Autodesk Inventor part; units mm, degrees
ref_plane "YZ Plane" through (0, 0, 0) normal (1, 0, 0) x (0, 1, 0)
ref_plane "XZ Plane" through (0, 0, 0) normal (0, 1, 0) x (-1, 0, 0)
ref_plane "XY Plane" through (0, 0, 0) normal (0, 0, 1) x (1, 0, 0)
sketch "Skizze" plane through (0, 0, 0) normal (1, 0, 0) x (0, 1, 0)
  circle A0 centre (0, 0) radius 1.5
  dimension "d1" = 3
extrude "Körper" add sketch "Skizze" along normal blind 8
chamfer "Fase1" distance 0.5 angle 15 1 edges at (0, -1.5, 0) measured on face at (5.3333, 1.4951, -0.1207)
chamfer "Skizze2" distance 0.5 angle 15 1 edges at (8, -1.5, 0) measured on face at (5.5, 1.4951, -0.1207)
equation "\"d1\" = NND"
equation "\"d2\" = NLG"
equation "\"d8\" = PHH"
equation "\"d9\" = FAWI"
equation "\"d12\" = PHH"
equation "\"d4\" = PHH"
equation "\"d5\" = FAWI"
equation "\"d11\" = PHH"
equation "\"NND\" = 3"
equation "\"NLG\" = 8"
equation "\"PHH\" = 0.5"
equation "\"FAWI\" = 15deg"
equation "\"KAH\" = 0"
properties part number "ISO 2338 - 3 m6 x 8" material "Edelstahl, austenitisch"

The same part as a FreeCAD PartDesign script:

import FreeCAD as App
import Part
import Sketcher
from FreeCAD import Vector
Q = App.Units.Quantity


def edges_at(feature, points):
    """Names of the edges that pass closest to the given points."""
    edges = feature.Shape.Edges
    near = lambda p: min(range(len(edges)), key=lambda i: edges[i].distToShape(Part.Vertex(*p))[0])
    return sorted({f"Edge{near(p) + 1}" for p in points})

doc = App.newDocument("Part")
body = doc.addObject("PartDesign::Body", "Body")

sketch1 = doc.addObject("Sketcher::SketchObject", "Sketch")
body.addObject(sketch1)
sketch1.AttachmentSupport = (doc.YZ_Plane, [""])
sketch1.MapMode = "FlatFace"
sketch1.addGeometry(Part.Circle(Vector(0, 0, 0), Vector(0, 0, 1), 1.5), False)
sketch1.addConstraint([
    Sketcher.Constraint("Coincident", 0, 3, -1, 1),
    Sketcher.Constraint("Diameter", 0, Q("3 mm")),
])
pad1 = doc.addObject("PartDesign::Pad", "Pad")
body.addObject(pad1)
pad1.Profile = sketch1
pad1.Length = 8
doc.recompute()

chamfer = doc.addObject("PartDesign::Chamfer", "Chamfer")
body.addObject(chamfer)
chamfer.Base = (pad1, edges_at(pad1, [(0, -1.5, 0)]))
chamfer.ChamferType = "Distance and Angle"
chamfer.Size = 0.5
chamfer.Angle = 15
doc.recompute()

chamfer2 = doc.addObject("PartDesign::Chamfer", "Chamfer001")
body.addObject(chamfer2)
chamfer2.Base = (chamfer, edges_at(chamfer, [(8, -1.5, 0)]))
chamfer2.ChamferType = "Distance and Angle"
chamfer2.Size = 0.5
chamfer2.Angle = 15

doc.recompute()
